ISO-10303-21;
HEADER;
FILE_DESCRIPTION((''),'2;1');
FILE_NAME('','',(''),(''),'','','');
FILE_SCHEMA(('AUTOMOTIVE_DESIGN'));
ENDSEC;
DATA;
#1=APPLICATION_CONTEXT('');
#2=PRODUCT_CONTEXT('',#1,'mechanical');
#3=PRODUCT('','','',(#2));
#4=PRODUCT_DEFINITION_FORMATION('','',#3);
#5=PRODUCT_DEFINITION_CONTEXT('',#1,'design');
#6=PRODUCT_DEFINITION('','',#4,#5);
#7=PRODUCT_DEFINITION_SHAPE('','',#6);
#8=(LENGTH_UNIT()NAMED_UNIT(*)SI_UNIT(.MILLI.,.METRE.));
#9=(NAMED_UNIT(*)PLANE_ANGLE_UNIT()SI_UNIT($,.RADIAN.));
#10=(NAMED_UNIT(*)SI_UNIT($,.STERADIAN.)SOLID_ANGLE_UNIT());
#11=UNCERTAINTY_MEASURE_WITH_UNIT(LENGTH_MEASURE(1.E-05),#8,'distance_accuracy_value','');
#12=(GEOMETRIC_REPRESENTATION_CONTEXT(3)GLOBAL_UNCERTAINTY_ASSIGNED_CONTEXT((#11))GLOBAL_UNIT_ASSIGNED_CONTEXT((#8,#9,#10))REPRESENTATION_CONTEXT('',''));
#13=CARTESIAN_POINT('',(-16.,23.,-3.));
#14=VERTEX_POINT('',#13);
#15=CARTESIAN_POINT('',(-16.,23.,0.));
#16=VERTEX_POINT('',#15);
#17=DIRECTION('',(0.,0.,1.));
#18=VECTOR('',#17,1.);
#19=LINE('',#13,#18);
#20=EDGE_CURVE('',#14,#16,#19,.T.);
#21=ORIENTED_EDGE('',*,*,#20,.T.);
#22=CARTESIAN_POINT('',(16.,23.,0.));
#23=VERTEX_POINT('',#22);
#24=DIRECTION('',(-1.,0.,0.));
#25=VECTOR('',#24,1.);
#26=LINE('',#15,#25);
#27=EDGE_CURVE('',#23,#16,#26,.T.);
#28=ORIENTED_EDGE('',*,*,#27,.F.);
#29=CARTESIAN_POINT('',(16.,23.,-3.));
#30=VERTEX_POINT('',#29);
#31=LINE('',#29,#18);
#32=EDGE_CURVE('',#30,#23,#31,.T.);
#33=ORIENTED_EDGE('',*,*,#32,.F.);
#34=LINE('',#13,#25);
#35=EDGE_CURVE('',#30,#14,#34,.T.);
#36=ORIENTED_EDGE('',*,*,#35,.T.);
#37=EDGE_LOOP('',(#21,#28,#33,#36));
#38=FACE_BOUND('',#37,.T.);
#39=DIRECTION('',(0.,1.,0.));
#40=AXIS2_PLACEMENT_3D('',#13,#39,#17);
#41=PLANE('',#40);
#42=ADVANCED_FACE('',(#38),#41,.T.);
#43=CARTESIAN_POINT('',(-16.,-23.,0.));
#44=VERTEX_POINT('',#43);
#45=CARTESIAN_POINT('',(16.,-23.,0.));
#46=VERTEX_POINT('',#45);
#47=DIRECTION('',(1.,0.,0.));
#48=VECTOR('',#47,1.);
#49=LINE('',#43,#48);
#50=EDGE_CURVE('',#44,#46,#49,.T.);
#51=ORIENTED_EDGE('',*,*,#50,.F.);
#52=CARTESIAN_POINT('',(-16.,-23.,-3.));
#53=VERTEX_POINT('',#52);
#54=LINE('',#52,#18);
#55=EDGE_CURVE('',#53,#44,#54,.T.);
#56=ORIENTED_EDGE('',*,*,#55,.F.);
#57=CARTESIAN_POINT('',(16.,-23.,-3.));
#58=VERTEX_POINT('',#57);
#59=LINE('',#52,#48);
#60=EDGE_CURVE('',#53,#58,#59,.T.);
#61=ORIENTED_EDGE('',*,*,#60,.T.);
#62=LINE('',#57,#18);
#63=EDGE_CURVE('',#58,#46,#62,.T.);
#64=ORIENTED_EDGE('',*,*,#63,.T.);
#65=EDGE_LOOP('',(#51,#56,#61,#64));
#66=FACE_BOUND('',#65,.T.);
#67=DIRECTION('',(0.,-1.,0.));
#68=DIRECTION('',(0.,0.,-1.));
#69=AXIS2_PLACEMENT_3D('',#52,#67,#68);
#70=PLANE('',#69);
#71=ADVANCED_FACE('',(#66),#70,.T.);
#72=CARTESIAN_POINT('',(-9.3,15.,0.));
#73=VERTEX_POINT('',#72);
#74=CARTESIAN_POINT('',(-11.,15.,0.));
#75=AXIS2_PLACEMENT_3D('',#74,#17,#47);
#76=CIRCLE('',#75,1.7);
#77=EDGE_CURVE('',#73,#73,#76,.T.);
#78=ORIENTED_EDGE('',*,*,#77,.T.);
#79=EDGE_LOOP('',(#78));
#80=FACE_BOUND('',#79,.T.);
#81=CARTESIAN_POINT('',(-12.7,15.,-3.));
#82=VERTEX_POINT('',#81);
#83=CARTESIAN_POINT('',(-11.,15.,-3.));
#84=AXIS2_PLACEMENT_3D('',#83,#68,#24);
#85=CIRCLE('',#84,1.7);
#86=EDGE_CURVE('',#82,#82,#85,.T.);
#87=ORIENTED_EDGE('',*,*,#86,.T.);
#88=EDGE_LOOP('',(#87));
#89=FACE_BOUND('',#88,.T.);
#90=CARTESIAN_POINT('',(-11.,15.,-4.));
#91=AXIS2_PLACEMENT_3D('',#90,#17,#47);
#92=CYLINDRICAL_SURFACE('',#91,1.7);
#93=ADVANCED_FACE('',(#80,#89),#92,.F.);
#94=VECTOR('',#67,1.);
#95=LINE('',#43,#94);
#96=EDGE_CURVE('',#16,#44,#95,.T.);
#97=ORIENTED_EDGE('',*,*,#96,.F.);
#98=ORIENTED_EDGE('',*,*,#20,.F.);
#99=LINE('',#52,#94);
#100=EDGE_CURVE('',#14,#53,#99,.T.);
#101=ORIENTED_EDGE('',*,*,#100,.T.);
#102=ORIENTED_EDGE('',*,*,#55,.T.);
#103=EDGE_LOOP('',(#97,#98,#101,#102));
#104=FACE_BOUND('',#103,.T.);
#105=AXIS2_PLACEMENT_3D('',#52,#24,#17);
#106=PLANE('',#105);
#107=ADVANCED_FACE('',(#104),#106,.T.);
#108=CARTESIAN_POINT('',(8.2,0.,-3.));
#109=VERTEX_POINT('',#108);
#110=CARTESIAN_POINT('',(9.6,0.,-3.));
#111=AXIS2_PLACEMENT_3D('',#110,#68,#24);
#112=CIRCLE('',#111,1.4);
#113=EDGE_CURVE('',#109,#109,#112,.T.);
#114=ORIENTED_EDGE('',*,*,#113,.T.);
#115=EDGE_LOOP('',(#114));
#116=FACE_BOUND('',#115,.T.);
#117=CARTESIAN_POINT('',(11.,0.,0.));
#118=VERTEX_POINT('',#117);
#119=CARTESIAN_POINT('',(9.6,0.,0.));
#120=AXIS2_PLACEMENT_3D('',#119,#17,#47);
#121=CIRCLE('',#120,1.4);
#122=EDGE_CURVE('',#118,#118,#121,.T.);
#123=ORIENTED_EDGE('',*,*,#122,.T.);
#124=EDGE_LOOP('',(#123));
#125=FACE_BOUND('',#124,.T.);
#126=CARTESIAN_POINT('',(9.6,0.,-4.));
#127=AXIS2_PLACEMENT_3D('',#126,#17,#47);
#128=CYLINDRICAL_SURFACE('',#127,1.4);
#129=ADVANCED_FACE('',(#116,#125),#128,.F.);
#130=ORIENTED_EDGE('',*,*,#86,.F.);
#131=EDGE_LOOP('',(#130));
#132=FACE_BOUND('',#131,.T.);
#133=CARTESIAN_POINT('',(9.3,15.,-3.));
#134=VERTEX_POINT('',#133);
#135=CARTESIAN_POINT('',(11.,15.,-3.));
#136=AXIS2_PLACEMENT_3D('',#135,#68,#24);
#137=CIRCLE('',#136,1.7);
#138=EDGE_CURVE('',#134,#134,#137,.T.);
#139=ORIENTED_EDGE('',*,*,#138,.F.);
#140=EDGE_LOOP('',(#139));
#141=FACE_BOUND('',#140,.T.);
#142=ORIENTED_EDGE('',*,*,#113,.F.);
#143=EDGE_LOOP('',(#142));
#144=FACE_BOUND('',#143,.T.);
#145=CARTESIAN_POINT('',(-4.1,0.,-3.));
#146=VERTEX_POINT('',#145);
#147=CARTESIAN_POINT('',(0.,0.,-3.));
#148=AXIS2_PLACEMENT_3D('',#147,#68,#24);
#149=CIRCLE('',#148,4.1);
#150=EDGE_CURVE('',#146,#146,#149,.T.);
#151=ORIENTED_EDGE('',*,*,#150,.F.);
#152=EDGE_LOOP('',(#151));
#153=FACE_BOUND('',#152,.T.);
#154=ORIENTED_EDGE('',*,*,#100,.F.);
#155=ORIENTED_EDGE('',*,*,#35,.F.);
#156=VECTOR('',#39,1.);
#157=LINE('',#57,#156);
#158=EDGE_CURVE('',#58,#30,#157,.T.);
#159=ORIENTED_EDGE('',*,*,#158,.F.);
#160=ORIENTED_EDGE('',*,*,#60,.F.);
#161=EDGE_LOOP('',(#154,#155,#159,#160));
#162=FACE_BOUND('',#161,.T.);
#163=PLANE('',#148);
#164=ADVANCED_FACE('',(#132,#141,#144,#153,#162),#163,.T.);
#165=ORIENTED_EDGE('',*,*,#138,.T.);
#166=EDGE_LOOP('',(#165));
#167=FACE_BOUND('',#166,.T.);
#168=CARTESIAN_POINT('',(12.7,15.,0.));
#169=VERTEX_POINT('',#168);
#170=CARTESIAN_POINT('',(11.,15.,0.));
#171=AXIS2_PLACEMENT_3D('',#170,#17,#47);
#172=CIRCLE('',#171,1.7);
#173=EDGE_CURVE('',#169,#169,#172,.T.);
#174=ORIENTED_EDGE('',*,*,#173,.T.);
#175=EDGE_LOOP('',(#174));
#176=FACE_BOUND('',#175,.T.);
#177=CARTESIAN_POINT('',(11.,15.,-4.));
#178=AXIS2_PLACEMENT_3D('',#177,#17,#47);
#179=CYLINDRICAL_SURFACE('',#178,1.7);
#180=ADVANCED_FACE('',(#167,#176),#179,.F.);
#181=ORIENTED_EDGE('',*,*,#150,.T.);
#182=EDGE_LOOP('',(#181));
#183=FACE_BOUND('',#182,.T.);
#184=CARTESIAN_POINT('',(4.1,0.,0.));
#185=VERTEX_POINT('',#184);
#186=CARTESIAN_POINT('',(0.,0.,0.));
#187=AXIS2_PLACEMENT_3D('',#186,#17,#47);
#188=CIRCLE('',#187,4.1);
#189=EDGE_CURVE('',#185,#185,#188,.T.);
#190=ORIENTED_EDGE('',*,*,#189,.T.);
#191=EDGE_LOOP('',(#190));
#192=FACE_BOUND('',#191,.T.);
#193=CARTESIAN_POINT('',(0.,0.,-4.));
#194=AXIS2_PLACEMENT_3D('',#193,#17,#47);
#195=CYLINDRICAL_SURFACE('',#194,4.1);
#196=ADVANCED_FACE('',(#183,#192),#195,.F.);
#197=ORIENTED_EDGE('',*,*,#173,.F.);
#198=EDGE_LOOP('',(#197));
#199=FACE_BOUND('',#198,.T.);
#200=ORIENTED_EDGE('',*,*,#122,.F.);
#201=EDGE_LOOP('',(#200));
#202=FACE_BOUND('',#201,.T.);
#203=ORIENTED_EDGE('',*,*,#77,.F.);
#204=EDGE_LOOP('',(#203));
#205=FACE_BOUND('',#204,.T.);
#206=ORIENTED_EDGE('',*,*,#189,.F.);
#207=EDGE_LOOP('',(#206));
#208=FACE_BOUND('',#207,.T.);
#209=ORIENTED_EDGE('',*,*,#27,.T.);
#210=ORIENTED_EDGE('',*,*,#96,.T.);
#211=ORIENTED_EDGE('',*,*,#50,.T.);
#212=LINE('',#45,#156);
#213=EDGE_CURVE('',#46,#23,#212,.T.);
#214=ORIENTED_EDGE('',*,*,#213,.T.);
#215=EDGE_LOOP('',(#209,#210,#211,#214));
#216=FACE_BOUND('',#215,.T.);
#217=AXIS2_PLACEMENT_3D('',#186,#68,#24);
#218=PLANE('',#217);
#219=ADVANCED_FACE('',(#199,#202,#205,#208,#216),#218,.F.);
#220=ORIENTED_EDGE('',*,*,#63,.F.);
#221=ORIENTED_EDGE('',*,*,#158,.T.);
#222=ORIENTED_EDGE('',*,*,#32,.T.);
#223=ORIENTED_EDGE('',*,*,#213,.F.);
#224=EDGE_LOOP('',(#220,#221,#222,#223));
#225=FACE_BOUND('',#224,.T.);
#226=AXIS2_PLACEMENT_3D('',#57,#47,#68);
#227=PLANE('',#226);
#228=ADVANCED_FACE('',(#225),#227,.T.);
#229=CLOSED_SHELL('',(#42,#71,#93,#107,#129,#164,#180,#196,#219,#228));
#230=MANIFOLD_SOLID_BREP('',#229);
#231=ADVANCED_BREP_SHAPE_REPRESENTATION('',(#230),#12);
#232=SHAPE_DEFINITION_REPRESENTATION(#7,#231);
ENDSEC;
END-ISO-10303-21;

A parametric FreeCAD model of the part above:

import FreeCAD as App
import Part
import Sketcher


def add_polygon(sketch, points):
    """Adds a closed chain of lines whose ends are joined by coincident constraints."""
    first, n = sketch.GeometryCount, len(points)
    for a, b in zip(points, points[1:] + points[:1]):
        sketch.addGeometry(Part.LineSegment(App.Vector(*a, 0), App.Vector(*b, 0)), False)
    for i in range(n):
        sketch.addConstraint(Sketcher.Constraint("Coincident", first + i, 2, first + (i + 1) % n, 1))

doc = App.newDocument("Part")
body = doc.addObject("PartDesign::Body", "Body")

sketch1 = body.newObject("Sketcher::SketchObject", "Sketch")
sketch1.AttachmentSupport = (doc.getObject("XY_Plane"), [""])
sketch1.MapMode = "FlatFace"
add_polygon(sketch1, [(-16, 23), (-16, -23), (16, -23), (16, 23)])
sketch1.addConstraint([
    Sketcher.Constraint("Vertical", 0),
    Sketcher.Constraint("Horizontal", 1),
    Sketcher.Constraint("Vertical", 2),
    Sketcher.Constraint("Horizontal", 3),
    Sketcher.Constraint("Symmetric", 0, 2, 2, 2, -1, 1),
    Sketcher.Constraint("DistanceX", 1, 1, 1, 2, 32.0),
    Sketcher.Constraint("DistanceY", 0, 2, 0, 1, 46.0),
])
pad1 = body.newObject("PartDesign::Pad", "Pad")
pad1.Profile = sketch1
pad1.Length = 3
pad1.Reversed = True

sketch2 = body.newObject("Sketcher::SketchObject", "Sketch001")
sketch2.AttachmentSupport = (doc.getObject("XY_Plane"), [""])
sketch2.MapMode = "FlatFace"
sketch2.addGeometry([
    Part.Circle(App.Vector(0, 0, 0), App.Vector(0, 0, 1), 4.1),
    Part.Circle(App.Vector(9.6, 0, 0), App.Vector(0, 0, 1), 1.4),
], False)
sketch2.addConstraint([
    Sketcher.Constraint("Coincident", 0, 3, -1, 1),
    Sketcher.Constraint("PointOnObject", 1, 3, -1),
    Sketcher.Constraint("Diameter", 0, 8.2),
    Sketcher.Constraint("Diameter", 1, 2.8),
    Sketcher.Constraint("DistanceX", -1, 1, 1, 3, 9.6),
])
pocket1 = body.newObject("PartDesign::Pocket", "Pocket")
pocket1.Profile = sketch2
pocket1.Length = 4

sketch3 = body.newObject("Sketcher::SketchObject", "Sketch002")
sketch3.AttachmentSupport = (doc.getObject("XY_Plane"), [""])
sketch3.MapMode = "FlatFace"
sketch3.addGeometry([
    Part.Circle(App.Vector(-11, 15, 0), App.Vector(0, 0, 1), 1.7),
    Part.Circle(App.Vector(11, 15, 0), App.Vector(0, 0, 1), 1.7),
], False)
sketch3.addConstraint([
    Sketcher.Constraint("Equal", 0, 1),
    Sketcher.Constraint("Symmetric", 0, 3, 1, 3, -2),
    Sketcher.Constraint("Diameter", 0, 3.4),
    Sketcher.Constraint("DistanceX", 0, 3, -1, 1, 11.0),
    Sketcher.Constraint("DistanceY", -1, 1, 0, 3, 15.0),
])
pocket2 = body.newObject("PartDesign::Pocket", "Pocket001")
pocket2.Profile = sketch3
pocket2.Length = 4

doc.recompute()
